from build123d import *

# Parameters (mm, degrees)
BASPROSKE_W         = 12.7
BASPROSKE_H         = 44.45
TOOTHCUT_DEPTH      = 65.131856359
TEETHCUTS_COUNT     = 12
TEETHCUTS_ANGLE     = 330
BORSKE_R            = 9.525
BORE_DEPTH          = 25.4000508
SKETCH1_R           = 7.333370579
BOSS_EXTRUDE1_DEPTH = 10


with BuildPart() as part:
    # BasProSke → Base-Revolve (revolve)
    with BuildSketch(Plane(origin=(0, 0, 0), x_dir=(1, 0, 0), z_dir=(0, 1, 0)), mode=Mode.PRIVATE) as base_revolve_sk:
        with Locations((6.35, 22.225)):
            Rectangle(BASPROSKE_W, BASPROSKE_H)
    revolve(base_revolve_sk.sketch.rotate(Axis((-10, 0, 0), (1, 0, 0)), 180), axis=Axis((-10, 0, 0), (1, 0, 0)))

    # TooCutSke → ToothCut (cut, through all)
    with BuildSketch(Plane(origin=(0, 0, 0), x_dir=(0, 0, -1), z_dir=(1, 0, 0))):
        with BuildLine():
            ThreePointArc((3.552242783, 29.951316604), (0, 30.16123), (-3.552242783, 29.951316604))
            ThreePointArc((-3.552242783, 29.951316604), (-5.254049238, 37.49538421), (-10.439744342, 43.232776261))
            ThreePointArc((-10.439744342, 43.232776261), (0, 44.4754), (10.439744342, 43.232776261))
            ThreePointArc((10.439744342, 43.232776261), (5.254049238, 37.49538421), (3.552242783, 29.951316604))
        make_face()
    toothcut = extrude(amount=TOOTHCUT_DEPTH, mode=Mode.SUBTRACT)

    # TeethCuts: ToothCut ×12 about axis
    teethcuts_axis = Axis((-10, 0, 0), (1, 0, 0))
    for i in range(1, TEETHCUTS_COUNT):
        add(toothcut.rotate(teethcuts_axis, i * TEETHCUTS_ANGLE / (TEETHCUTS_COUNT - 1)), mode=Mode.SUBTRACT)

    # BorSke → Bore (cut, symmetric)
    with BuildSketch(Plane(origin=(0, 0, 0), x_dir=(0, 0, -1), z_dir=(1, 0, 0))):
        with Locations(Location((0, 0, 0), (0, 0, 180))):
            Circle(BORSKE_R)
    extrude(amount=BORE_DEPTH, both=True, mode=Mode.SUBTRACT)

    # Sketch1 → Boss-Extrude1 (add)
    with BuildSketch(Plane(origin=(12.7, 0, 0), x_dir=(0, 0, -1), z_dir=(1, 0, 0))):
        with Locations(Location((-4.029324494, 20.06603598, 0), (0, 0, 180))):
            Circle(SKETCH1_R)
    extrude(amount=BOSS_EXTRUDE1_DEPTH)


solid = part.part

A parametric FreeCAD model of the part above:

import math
import FreeCAD as App
import Part
import Sketcher
Q = App.Units.Quantity


def add_polygon(sketch, points):
    """Adds a closed chain of lines whose ends are joined by coincident constraints."""
    first, n = sketch.GeometryCount, len(points)
    for a, b in zip(points, points[1:] + points[:1]):
        sketch.addGeometry(Part.LineSegment(App.Vector(*a, 0), App.Vector(*b, 0)), False)
    for i in range(n):
        sketch.addConstraint(Sketcher.Constraint("Coincident", first + i, 2, first + (i + 1) % n, 1))

doc = App.newDocument("Part")
params = doc.addObject("Spreadsheet::Sheet", "Params")
for row, (alias, value) in enumerate([
    ("sketch1_width", "0.5 in"),
    ("sketch1_height", "1.75 in"),
    ("revolution_angle", "360 deg"),
    ("sketch2_radius", "0.6 in"),
    ("sketch2_radius2", "1.751 in"),
    ("sketch3_diameter", "0.75 in"),
    ("pocket2_length", "50.800102 mm"),
    ("pad1_length", "10 mm"),
], start=1):
    params.set(f"A{row}", alias)
    params.set(f"B{row}", "=" + value)
    params.setAlias(f"B{row}", alias)

body = doc.addObject("PartDesign::Body", "Body")

sketch1 = body.newObject("Sketcher::SketchObject", "Sketch")
sketch1.AttachmentSupport = (doc.getObject("XZ_Plane"), [""])
sketch1.MapMode = "FlatFace"
add_polygon(sketch1, [(0, -44), (0, 0), (13, 0), (13, -44)])
sketch1.addConstraint([
    Sketcher.Constraint("Vertical", 0),
    Sketcher.Constraint("Horizontal", 1),
    Sketcher.Constraint("Vertical", 2),
    Sketcher.Constraint("Horizontal", 3),
    Sketcher.Constraint("Coincident", 0, 2, -1, 1),
    Sketcher.Constraint("DistanceX", 1, 1, 1, 2, Q("0.5 in")),
    Sketcher.Constraint("DistanceY", 0, 1, 0, 2, Q("1.75 in")),
])
sketch1.setExpression("Constraints[9]", "Params.sketch1_width")
sketch1.setExpression("Constraints[10]", "Params.sketch1_height")
revolution = body.newObject("PartDesign::Revolution", "Revolution")
revolution.Profile = sketch1
revolution.ReferenceAxis = (sketch1, ["H_Axis"])
revolution.setExpression("Angle", "Params.revolution_angle")

sketch2 = body.newObject("Sketcher::SketchObject", "Sketch001")
sketch2.AttachmentSupport = (doc.getObject("YZ_Plane"), [""])
sketch2.MapMode = "FlatFace"
sketch2.addGeometry([
    Part.ArcOfCircle(Part.Circle(App.Vector(0, 0, 0), App.Vector(0, 0, 1), 30), math.radians(-6.76), math.radians(6.76)),
    Part.ArcOfCircle(Part.Circle(App.Vector(30, -19, 0), App.Vector(0, 0, 1), 15), math.radians(33), math.radians(92)),
    Part.ArcOfCircle(Part.Circle(App.Vector(0, 0, 0), App.Vector(0, 0, 1), 44), math.radians(-14), math.radians(14)),
    Part.ArcOfCircle(Part.Circle(App.Vector(30, 19, 0), App.Vector(0, 0, 1), 15), math.radians(-92), math.radians(-33)),
], False)
sketch2.addConstraint([
    Sketcher.Constraint("Coincident", 0, 1, 1, 2),
    Sketcher.Constraint("Coincident", 1, 1, 2, 1),
    Sketcher.Constraint("Coincident", 2, 2, 3, 2),
    Sketcher.Constraint("Coincident", 3, 1, 0, 2),
    Sketcher.Constraint("Coincident", 0, 3, -1, 1),
    Sketcher.Constraint("Coincident", 2, 3, -1, 1),
    Sketcher.Constraint("Equal", 1, 3),
    Sketcher.Constraint("Symmetric", 1, 3, 3, 3, -1),
    Sketcher.Constraint("Radius", 1, Q("0.6 in")),
    Sketcher.Constraint("Radius", 2, Q("1.751 in")),
    Sketcher.Constraint("Radius", 0, 30.16123),
    Sketcher.Constraint("DistanceY", 1, 1, 0, 1, 6.887502),
    Sketcher.Constraint("DistanceY", 0, 1, 3, 3, 22.33533),
])
sketch2.setExpression("Constraints[8]", "Params.sketch2_radius")
sketch2.setExpression("Constraints[9]", "Params.sketch2_radius2")
pocket1 = body.newObject("PartDesign::Pocket", "Pocket")
pocket1.Profile = sketch2
pocket1.Type = "ThroughAll"
pocket1.Reversed = True
doc.recompute()

polarpattern = body.newObject("PartDesign::PolarPattern", "PolarPattern")
polarpattern.Originals = [pocket1]
polarpattern.Axis = (doc.getObject("X_Axis"), [""])
polarpattern.Angle = 360
polarpattern.Occurrences = 12
body.Tip = polarpattern

sketch3 = body.newObject("Sketcher::SketchObject", "Sketch002")
sketch3.AttachmentSupport = (doc.getObject("YZ_Plane"), [""])
sketch3.MapMode = "FlatFace"
sketch3.addGeometry(Part.Circle(App.Vector(0, 0, 0), App.Vector(0, 0, 1), 10), False)
sketch3.addConstraint([
    Sketcher.Constraint("Coincident", 0, 3, -1, 1),
    Sketcher.Constraint("Diameter", 0, Q("0.75 in")),
])
sketch3.setExpression("Constraints[1]", "Params.sketch3_diameter")
pocket2 = body.newObject("PartDesign::Pocket", "Pocket001")
pocket2.Profile = sketch3
pocket2.setExpression("Length", "Params.pocket2_length")
pocket2.Midplane = True

sketch4 = body.newObject("Sketcher::SketchObject", "Sketch003")
sketch4.AttachmentSupport = (doc.getObject("YZ_Plane"), [""])
sketch4.MapMode = "FlatFace"
sketch4.AttachmentOffset = App.Placement(App.Vector(0, 0, 0.5 * 25.4), App.Rotation())
sketch4.addGeometry(Part.Circle(App.Vector(20, 4, 0), App.Vector(0, 0, 1), 7), False)
sketch4.addConstraint([
    Sketcher.Constraint("Diameter", 0, 14.666741),
    Sketcher.Constraint("DistanceX", -1, 1, 0, 3, 20.066036),
    Sketcher.Constraint("DistanceY", -1, 1, 0, 3, 4.029324),
])
pad1 = body.newObject("PartDesign::Pad", "Pad")
pad1.Profile = sketch4
pad1.setExpression("Length", "Params.pad1_length")

doc.recompute()
